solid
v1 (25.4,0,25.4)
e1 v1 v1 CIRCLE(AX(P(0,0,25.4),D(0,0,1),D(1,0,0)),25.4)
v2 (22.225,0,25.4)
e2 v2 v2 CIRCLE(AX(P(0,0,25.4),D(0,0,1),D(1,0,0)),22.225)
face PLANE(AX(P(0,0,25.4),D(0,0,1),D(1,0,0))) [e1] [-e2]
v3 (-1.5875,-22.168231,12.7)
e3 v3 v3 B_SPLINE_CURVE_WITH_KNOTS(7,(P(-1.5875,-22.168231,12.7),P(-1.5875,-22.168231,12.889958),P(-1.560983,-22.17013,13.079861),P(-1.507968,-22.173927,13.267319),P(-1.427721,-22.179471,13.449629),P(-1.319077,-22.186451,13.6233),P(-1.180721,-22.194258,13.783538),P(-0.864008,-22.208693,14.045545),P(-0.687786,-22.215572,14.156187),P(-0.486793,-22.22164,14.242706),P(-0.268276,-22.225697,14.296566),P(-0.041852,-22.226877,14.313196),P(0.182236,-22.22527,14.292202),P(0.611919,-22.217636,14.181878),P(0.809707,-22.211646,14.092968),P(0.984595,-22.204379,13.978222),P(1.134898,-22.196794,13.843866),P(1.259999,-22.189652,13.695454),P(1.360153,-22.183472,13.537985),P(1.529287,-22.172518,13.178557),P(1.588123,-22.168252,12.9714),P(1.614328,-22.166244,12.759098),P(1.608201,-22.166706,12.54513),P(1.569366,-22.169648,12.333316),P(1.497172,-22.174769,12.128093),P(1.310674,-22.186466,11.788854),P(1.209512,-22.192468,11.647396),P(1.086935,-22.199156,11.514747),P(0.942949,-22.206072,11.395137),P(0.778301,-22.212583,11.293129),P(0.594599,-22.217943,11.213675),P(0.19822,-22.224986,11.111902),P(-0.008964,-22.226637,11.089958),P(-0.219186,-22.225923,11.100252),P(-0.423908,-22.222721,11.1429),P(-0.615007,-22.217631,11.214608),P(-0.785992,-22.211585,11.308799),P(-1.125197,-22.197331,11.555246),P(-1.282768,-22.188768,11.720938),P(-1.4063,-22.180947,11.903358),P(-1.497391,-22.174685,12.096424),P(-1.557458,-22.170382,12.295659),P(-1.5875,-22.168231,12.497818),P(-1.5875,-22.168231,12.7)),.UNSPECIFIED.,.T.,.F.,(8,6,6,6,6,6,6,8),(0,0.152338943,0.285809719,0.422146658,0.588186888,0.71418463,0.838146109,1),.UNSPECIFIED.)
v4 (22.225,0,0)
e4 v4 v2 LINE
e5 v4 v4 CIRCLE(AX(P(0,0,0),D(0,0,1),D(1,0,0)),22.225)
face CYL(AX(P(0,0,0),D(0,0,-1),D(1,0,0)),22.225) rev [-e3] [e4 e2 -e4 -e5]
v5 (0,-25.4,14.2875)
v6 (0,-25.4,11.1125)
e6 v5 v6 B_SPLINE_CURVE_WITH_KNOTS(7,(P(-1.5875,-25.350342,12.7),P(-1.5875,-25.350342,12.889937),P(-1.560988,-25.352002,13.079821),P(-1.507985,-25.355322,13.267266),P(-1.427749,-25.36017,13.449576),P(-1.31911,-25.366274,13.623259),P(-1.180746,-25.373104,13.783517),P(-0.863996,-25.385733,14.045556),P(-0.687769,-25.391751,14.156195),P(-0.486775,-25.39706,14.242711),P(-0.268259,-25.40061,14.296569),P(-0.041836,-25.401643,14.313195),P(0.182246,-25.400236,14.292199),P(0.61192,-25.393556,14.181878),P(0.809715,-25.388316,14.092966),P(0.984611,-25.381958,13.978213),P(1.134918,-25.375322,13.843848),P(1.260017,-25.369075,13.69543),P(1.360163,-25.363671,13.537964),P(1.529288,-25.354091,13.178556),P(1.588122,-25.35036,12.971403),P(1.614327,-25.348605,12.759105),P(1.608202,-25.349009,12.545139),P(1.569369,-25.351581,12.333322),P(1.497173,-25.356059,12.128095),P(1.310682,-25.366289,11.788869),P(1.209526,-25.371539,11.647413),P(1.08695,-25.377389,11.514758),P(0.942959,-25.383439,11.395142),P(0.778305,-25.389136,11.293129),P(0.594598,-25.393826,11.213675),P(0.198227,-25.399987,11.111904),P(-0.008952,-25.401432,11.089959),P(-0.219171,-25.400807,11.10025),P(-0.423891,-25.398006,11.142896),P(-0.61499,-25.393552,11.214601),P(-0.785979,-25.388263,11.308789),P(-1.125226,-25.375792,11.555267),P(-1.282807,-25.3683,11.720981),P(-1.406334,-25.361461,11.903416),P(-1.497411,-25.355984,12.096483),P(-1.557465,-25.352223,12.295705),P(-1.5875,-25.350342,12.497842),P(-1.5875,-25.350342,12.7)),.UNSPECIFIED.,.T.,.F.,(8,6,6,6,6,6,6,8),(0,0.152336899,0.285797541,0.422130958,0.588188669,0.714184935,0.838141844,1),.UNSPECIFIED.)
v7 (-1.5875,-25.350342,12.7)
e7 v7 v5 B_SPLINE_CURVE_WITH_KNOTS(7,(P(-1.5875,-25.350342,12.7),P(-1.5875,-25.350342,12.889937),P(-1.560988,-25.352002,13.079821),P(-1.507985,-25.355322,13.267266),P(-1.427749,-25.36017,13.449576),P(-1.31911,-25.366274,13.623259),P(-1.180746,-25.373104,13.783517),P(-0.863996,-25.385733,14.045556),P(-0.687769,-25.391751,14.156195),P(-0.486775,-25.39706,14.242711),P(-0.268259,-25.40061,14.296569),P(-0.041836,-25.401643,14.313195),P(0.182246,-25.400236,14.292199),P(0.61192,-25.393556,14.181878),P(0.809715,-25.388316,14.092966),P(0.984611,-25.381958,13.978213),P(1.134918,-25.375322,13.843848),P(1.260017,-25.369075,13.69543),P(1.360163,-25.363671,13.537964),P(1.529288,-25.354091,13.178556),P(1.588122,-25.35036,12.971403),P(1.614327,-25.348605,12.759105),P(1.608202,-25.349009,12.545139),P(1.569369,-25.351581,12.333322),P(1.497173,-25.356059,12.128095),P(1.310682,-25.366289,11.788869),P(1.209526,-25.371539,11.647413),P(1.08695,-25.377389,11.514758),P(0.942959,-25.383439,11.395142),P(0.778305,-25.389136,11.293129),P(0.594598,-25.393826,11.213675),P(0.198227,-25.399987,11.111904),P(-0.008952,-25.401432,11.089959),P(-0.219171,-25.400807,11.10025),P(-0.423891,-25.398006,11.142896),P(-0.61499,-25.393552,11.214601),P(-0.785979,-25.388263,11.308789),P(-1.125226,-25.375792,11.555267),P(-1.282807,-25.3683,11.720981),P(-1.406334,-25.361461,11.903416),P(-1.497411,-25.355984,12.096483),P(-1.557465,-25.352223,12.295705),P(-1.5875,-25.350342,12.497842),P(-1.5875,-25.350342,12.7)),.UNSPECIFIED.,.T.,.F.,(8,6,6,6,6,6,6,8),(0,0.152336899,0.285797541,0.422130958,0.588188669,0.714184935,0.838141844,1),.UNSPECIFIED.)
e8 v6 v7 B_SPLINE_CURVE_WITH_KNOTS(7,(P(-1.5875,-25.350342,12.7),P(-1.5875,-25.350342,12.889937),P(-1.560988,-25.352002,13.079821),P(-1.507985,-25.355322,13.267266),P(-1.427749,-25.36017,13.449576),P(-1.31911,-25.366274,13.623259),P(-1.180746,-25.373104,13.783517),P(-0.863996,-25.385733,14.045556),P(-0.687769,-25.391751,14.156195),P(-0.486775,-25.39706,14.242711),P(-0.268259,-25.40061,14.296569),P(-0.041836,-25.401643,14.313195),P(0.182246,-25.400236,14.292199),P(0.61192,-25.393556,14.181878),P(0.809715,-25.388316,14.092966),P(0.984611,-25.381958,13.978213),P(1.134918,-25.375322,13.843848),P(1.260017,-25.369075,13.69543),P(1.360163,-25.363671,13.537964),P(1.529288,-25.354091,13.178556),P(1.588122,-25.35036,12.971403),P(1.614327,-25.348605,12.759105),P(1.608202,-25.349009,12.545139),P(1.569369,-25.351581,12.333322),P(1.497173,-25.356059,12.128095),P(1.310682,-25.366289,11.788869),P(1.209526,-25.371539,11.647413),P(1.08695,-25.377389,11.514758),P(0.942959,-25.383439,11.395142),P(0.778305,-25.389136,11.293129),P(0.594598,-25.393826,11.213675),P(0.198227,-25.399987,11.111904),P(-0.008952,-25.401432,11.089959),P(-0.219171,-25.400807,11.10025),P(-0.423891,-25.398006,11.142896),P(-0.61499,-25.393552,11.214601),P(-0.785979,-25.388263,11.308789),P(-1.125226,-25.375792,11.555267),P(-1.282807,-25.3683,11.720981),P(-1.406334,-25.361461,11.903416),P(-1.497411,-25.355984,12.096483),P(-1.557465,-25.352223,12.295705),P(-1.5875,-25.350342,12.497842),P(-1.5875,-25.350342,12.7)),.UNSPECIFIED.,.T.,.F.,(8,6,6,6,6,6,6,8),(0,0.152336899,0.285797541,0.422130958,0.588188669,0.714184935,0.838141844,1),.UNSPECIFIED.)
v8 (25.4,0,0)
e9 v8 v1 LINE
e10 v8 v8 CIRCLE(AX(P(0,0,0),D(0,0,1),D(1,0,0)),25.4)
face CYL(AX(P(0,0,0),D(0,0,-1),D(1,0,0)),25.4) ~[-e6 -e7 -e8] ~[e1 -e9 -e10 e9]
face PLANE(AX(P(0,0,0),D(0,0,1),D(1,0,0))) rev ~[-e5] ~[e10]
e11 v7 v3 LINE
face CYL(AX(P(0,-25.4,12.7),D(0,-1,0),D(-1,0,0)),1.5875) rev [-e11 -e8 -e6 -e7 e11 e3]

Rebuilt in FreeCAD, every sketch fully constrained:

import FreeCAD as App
import Part
import Sketcher
from FreeCAD import Vector
Q = App.Units.Quantity

doc = App.newDocument("Part")
body = doc.addObject("PartDesign::Body", "Body")

sketch1 = body.newObject("Sketcher::SketchObject", "Sketch")
sketch1.AttachmentSupport = (doc.getObject("XY_Plane"), [""])
sketch1.MapMode = "FlatFace"
sketch1.addGeometry([
    Part.Circle(Vector(0, 0, 0), Vector(0, 0, 1), 25),
    Part.Circle(Vector(0, 0, 0), Vector(0, 0, 1), 22),
], False)
sketch1.addConstraint([
    Sketcher.Constraint("Coincident", 0, 3, -1, 1),
    Sketcher.Constraint("Coincident", 1, 3, -1, 1),
    Sketcher.Constraint("Diameter", 0, Q("2 in")),
    Sketcher.Constraint("Diameter", 1, Q("1.75 in")),
])
pad1 = body.newObject("PartDesign::Pad", "Pad")
pad1.Profile = sketch1
pad1.Length = Q("1 in")

sketch2 = body.newObject("Sketcher::SketchObject", "Sketch001")
sketch2.AttachmentSupport = (doc.getObject("XZ_Plane"), [""])
sketch2.MapMode = "FlatFace"
sketch2.AttachmentOffset = App.Placement(Vector(0, 0, 1 * 25.4), App.Rotation())
sketch2.addGeometry(Part.Circle(Vector(0, 12.7, 0), Vector(0, 0, 1), 1.6), False)
sketch2.addConstraint([
    Sketcher.Constraint("PointOnObject", 0, 3, -2),
    Sketcher.Constraint("Diameter", 0, Q("0.125 in")),
    Sketcher.Constraint("DistanceY", -1, 1, 0, 3, Q("0.5 in")),
])
pocket1 = body.newObject("PartDesign::Pocket", "Pocket")
pocket1.Profile = sketch2
pocket1.Length = Q("1 in")

doc.recompute()
